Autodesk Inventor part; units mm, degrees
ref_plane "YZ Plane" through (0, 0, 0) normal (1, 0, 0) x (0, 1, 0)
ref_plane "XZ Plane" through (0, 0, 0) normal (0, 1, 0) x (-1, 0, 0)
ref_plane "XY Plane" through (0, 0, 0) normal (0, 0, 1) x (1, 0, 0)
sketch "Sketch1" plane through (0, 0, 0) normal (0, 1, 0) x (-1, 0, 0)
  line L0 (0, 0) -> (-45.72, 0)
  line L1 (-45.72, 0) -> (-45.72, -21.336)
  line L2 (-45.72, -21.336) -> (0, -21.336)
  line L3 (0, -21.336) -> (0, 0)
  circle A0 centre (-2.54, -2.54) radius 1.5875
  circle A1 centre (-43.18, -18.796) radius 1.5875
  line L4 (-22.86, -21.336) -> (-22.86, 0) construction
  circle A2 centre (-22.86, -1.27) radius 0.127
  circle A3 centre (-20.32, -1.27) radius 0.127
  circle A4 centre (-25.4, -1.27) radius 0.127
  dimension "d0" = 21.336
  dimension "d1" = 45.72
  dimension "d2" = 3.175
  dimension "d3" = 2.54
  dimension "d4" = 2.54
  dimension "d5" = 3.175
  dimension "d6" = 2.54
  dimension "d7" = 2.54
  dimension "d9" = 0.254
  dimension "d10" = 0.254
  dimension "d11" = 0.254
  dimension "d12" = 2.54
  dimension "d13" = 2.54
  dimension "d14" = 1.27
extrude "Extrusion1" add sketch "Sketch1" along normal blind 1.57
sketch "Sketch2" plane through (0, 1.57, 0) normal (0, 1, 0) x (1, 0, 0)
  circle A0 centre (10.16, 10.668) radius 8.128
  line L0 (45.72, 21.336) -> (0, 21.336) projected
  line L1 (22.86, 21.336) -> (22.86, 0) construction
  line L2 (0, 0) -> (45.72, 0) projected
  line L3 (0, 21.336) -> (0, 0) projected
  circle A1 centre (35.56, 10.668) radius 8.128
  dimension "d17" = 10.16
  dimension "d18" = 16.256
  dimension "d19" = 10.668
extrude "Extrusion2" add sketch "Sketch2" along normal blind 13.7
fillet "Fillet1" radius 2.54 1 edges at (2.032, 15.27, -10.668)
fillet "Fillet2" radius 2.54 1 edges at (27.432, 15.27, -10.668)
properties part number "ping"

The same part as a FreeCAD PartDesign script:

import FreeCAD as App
import Part
import Sketcher

V = App.Vector
Q = App.Units.Quantity


def edges_at(feature, points):
    """Names of the edges that pass closest to the given points."""
    edges = feature.Shape.Edges
    near = lambda p: min(range(len(edges)), key=lambda i: edges[i].distToShape(Part.Vertex(*p))[0])
    return sorted({f"Edge{near(p) + 1}" for p in points})

doc = App.newDocument("Part")
body = doc.addObject("PartDesign::Body", "Body")

# Sketch on XZ plane
sketch1 = body.newObject("Sketcher::SketchObject", "Sketch")
sketch1.AttachmentSupport = (doc.getObject("XZ_Plane"), [""])
sketch1.MapMode = "FlatFace"
sketch1.addGeometry([
    Part.LineSegment(V(0, -21.34, 0), V(0, 0, 0)),  # 0
    Part.LineSegment(V(0, 0, 0), V(45.72, 0, 0)),  # 1
    Part.LineSegment(V(45.72, 0, 0), V(45.72, -21.34, 0)),  # 2
    Part.LineSegment(V(45.72, -21.34, 0), V(0, -21.34, 0)),  # 3
    Part.Circle(V(43.18, -18.8, 0), V(0, 0, 1), 1.59),  # 4
    Part.Circle(V(25.4, -1.27, 0), V(0, 0, 1), 0.13),  # 5
    Part.Circle(V(22.86, -1.27, 0), V(0, 0, 1), 0.13),  # 6
    Part.Circle(V(20.32, -1.27, 0), V(0, 0, 1), 0.13),  # 7
    Part.Circle(V(2.54, -2.54, 0), V(0, 0, 1), 1.59),  # 8
], False)
sketch1.addConstraint([
    Sketcher.Constraint("Coincident", 0, 2, 1, 1),
    Sketcher.Constraint("Coincident", 1, 2, 2, 1),
    Sketcher.Constraint("Coincident", 2, 2, 3, 1),
    Sketcher.Constraint("Coincident", 3, 2, 0, 1),
    Sketcher.Constraint("Vertical", 0),
    Sketcher.Constraint("Horizontal", 1),
    Sketcher.Constraint("Vertical", 2),
    Sketcher.Constraint("Horizontal", 3),
    Sketcher.Constraint("Coincident", 0, 2, -1, 1),
    Sketcher.Constraint("Equal", 5, 6),
    Sketcher.Constraint("Equal", 6, 7),
    Sketcher.Constraint("Equal", 4, 8),
    Sketcher.Constraint("Horizontal", 5, 3, 6, 3),
    Sketcher.Constraint("Horizontal", 6, 3, 7, 3),
    Sketcher.Constraint("Diameter", 5, Q("0.01 in")),
    Sketcher.Constraint("Diameter", 4, Q("0.125 in")),
    Sketcher.Constraint("DistanceX", 1, 1, 1, 2, Q("1.8 in")),
    Sketcher.Constraint("DistanceY", 0, 1, 0, 2, Q("0.84 in")),
    Sketcher.Constraint("DistanceX", -1, 1, 8, 3, Q("0.1 in")),
    Sketcher.Constraint("DistanceY", 8, 3, -1, 1, Q("0.1 in")),
    Sketcher.Constraint("DistanceX", 6, 3, 5, 3, Q("0.1 in")),
    Sketcher.Constraint("DistanceX", 7, 3, 6, 3, Q("0.1 in")),
    Sketcher.Constraint("DistanceX", 4, 3, 1, 2, Q("0.1 in")),
    Sketcher.Constraint("DistanceY", 2, 2, 4, 3, Q("0.1 in")),
    Sketcher.Constraint("DistanceY", 5, 3, -1, 1, Q("0.05 in")),
    Sketcher.Constraint("DistanceX", -1, 1, 5, 3, Q("1 in")),
])
pad1 = body.newObject("PartDesign::Pad", "Pad")
pad1.Profile = sketch1
pad1.Length = Q("0.061811 in")
pad1.Reversed = True

# Sketch on XZ plane
sketch2 = body.newObject("Sketcher::SketchObject", "Sketch001")
sketch2.AttachmentSupport = (doc.getObject("XZ_Plane"), [""])
sketch2.MapMode = "FlatFace"
sketch2.AttachmentOffset = App.Placement(V(0, 0, -0.061811 * 25.4), App.Rotation())
sketch2.addGeometry([
    Part.Circle(V(10, -11, 0), V(0, 0, 1), 8),
    Part.Circle(V(36, -11, 0), V(0, 0, 1), 8),
], False)
sketch2.addConstraint([
    Sketcher.Constraint("Equal", 0, 1),
    Sketcher.Constraint("Horizontal", 0, 3, 1, 3),
    Sketcher.Constraint("Diameter", 0, Q("0.64 in")),
    Sketcher.Constraint("DistanceX", -1, 1, 0, 3, Q("0.4 in")),
    Sketcher.Constraint("DistanceY", 0, 3, -1, 1, Q("0.42 in")),
    Sketcher.Constraint("DistanceX", 0, 3, 1, 3, Q("1 in")),
])
pad2 = body.newObject("PartDesign::Pad", "Pad001")
pad2.Profile = sketch2
pad2.Length = 13.7
pad2.Reversed = True
doc.recompute()

fillet = body.newObject("PartDesign::Fillet", "Fillet")
fillet.Base = (pad2, edges_at(pad2, [(2.032, 15.27, -10.668)]))
fillet.Radius = Q("0.1 in")
doc.recompute()

fillet2 = body.newObject("PartDesign::Fillet", "Fillet001")
fillet2.Base = (fillet, edges_at(fillet, [(27.432, 15.27, -10.668)]))
fillet2.Radius = Q("0.1 in")

doc.recompute()
